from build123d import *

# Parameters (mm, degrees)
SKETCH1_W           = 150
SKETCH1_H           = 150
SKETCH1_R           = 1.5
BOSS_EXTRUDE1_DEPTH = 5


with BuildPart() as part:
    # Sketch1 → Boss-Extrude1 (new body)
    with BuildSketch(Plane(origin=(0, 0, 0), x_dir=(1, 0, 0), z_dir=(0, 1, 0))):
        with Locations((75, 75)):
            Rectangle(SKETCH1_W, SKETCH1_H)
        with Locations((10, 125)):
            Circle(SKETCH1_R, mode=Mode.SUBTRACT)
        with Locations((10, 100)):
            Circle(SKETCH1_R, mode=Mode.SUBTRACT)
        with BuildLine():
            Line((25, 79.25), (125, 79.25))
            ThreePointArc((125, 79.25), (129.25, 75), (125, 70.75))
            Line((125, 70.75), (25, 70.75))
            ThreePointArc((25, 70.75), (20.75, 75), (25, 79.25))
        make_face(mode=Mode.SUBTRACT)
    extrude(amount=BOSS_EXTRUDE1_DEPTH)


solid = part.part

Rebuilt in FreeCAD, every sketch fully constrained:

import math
import FreeCAD as App
import Part
import Sketcher
from FreeCAD import Vector
Q = App.Units.Quantity


def add_polygon(sketch, points):
    """Adds a closed chain of lines whose ends are joined by coincident constraints."""
    first, n = sketch.GeometryCount, len(points)
    for a, b in zip(points, points[1:] + points[:1]):
        sketch.addGeometry(Part.LineSegment(App.Vector(*a, 0), App.Vector(*b, 0)), False)
    for i in range(n):
        sketch.addConstraint(Sketcher.Constraint("Coincident", first + i, 2, first + (i + 1) % n, 1))

doc = App.newDocument("Part")
body = doc.addObject("PartDesign::Body", "Body")

sketch1 = doc.addObject("Sketcher::SketchObject", "Sketch")
body.addObject(sketch1)
sketch1.AttachmentSupport = (doc.XZ_Plane, [""])
sketch1.MapMode = "FlatFace"
add_polygon(sketch1, [(0, -150), (0, 0), (150, 0), (150, -150)])
sketch1.addGeometry(Part.ArcOfCircle(Part.Circle(Vector(25, -75, 0), Vector(0, 0, 1), 4.2), math.radians(90), math.radians(270)), False)
sketch1.addGeometry(Part.LineSegment(Vector(25, -79.2, 0), Vector(125, -79.2, 0)), False)
sketch1.addGeometry(Part.ArcOfCircle(Part.Circle(Vector(125, -75, 0), Vector(0, 0, 1), 4.2), math.radians(-90), math.radians(90)), False)
sketch1.addGeometry(Part.LineSegment(Vector(125, -70.8, 0), Vector(25, -70.8, 0)), False)
sketch1.addGeometry(Part.Circle(Vector(10, -100, 0), Vector(0, 0, 1), 1.5), False)
sketch1.addGeometry(Part.Circle(Vector(10, -125, 0), Vector(0, 0, 1), 1.5), False)
sketch1.addConstraint(Sketcher.Constraint("Tangent", 4, 2, 5, 1))
sketch1.addConstraint(Sketcher.Constraint("Tangent", 5, 2, 6, 1))
sketch1.addConstraint(Sketcher.Constraint("Tangent", 6, 2, 7, 1))
sketch1.addConstraint(Sketcher.Constraint("Tangent", 7, 2, 4, 1))
sketch1.addConstraint(Sketcher.Constraint("Vertical", 0))
sketch1.addConstraint(Sketcher.Constraint("Horizontal", 1))
sketch1.addConstraint(Sketcher.Constraint("Vertical", 2))
sketch1.addConstraint(Sketcher.Constraint("Horizontal", 3))
sketch1.addConstraint(Sketcher.Constraint("Horizontal", 5))
sketch1.addConstraint(Sketcher.Constraint("Horizontal", 7))
sketch1.addConstraint(Sketcher.Constraint("Coincident", 0, 2, -1, 1))
sketch1.addConstraint(Sketcher.Constraint("Equal", 8, 9))
sketch1.addConstraint(Sketcher.Constraint("Vertical", 8, 3, 9, 3))
sketch1.addConstraint(Sketcher.Constraint("Equal", 3, 0))
sketch1.addConstraint(Sketcher.Constraint("Diameter", 8, Q("3 mm")))
sketch1.addConstraint(Sketcher.Constraint("DistanceX", 1, 1, 1, 2, Q("150 mm")))
sketch1.addConstraint(Sketcher.Constraint("DistanceX", 5, 1, 5, 2, Q("100 mm")))
sketch1.addConstraint(Sketcher.Constraint("Radius", 4, Q("4.25 mm")))
sketch1.addConstraint(Sketcher.Constraint("DistanceX", -1, 1, 4, 3, Q("25 mm")))
sketch1.addConstraint(Sketcher.Constraint("DistanceY", 4, 3, -1, 1, Q("75 mm")))
sketch1.addConstraint(Sketcher.Constraint("DistanceX", -1, 1, 8, 3, Q("10 mm")))
sketch1.addConstraint(Sketcher.Constraint("DistanceY", 8, 3, -1, 1, Q("100 mm")))
sketch1.addConstraint(Sketcher.Constraint("DistanceY", 9, 3, -1, 1, Q("125 mm")))
pad1 = doc.addObject("PartDesign::Pad", "Pad")
body.addObject(pad1)
pad1.Profile = sketch1
pad1.Length = 5
pad1.Reversed = True

doc.recompute()
